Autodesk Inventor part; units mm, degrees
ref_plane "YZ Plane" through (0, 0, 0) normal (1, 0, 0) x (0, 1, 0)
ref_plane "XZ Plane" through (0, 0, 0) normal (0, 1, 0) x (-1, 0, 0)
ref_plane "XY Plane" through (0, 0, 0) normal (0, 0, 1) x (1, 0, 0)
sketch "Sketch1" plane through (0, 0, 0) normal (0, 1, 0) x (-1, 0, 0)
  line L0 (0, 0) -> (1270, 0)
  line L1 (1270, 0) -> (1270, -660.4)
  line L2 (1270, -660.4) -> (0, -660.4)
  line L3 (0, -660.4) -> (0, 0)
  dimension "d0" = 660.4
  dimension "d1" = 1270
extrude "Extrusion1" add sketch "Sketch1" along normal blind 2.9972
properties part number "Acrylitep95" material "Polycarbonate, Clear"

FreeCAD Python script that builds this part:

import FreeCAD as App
import Part
import Sketcher
from FreeCAD import Vector
Q = App.Units.Quantity


def add_polygon(sketch, points):
    """Adds a closed chain of lines whose ends are joined by coincident constraints."""
    first, n = sketch.GeometryCount, len(points)
    for a, b in zip(points, points[1:] + points[:1]):
        sketch.addGeometry(Part.LineSegment(App.Vector(*a, 0), App.Vector(*b, 0)), False)
    for i in range(n):
        sketch.addConstraint(Sketcher.Constraint("Coincident", first + i, 2, first + (i + 1) % n, 1))

doc = App.newDocument("Part")
body = doc.addObject("PartDesign::Body", "Body")

# Sketch on XZ plane
sketch1 = doc.addObject("Sketcher::SketchObject", "Sketch")
body.addObject(sketch1)
sketch1.AttachmentSupport = (doc.XZ_Plane, [""])
sketch1.MapMode = "FlatFace"
add_polygon(sketch1, [(-1270, 0), (0, 0), (0, -660), (-1270, -660)])  # lines 0-3
sketch1.addConstraint([
    Sketcher.Constraint("Horizontal", 0),
    Sketcher.Constraint("Vertical", 1),
    Sketcher.Constraint("Horizontal", 2),
    Sketcher.Constraint("Vertical", 3),
    Sketcher.Constraint("Coincident", 0, 2, -1, 1),
    Sketcher.Constraint("DistanceX", 0, 1, 0, 2, Q("50 in")),
    Sketcher.Constraint("DistanceY", 1, 2, 1, 1, Q("26 in")),
])
pad1 = doc.addObject("PartDesign::Pad", "Pad")
body.addObject(pad1)
pad1.Profile = sketch1
pad1.Length = Q("0.118 in")
pad1.Reversed = True

doc.recompute()
